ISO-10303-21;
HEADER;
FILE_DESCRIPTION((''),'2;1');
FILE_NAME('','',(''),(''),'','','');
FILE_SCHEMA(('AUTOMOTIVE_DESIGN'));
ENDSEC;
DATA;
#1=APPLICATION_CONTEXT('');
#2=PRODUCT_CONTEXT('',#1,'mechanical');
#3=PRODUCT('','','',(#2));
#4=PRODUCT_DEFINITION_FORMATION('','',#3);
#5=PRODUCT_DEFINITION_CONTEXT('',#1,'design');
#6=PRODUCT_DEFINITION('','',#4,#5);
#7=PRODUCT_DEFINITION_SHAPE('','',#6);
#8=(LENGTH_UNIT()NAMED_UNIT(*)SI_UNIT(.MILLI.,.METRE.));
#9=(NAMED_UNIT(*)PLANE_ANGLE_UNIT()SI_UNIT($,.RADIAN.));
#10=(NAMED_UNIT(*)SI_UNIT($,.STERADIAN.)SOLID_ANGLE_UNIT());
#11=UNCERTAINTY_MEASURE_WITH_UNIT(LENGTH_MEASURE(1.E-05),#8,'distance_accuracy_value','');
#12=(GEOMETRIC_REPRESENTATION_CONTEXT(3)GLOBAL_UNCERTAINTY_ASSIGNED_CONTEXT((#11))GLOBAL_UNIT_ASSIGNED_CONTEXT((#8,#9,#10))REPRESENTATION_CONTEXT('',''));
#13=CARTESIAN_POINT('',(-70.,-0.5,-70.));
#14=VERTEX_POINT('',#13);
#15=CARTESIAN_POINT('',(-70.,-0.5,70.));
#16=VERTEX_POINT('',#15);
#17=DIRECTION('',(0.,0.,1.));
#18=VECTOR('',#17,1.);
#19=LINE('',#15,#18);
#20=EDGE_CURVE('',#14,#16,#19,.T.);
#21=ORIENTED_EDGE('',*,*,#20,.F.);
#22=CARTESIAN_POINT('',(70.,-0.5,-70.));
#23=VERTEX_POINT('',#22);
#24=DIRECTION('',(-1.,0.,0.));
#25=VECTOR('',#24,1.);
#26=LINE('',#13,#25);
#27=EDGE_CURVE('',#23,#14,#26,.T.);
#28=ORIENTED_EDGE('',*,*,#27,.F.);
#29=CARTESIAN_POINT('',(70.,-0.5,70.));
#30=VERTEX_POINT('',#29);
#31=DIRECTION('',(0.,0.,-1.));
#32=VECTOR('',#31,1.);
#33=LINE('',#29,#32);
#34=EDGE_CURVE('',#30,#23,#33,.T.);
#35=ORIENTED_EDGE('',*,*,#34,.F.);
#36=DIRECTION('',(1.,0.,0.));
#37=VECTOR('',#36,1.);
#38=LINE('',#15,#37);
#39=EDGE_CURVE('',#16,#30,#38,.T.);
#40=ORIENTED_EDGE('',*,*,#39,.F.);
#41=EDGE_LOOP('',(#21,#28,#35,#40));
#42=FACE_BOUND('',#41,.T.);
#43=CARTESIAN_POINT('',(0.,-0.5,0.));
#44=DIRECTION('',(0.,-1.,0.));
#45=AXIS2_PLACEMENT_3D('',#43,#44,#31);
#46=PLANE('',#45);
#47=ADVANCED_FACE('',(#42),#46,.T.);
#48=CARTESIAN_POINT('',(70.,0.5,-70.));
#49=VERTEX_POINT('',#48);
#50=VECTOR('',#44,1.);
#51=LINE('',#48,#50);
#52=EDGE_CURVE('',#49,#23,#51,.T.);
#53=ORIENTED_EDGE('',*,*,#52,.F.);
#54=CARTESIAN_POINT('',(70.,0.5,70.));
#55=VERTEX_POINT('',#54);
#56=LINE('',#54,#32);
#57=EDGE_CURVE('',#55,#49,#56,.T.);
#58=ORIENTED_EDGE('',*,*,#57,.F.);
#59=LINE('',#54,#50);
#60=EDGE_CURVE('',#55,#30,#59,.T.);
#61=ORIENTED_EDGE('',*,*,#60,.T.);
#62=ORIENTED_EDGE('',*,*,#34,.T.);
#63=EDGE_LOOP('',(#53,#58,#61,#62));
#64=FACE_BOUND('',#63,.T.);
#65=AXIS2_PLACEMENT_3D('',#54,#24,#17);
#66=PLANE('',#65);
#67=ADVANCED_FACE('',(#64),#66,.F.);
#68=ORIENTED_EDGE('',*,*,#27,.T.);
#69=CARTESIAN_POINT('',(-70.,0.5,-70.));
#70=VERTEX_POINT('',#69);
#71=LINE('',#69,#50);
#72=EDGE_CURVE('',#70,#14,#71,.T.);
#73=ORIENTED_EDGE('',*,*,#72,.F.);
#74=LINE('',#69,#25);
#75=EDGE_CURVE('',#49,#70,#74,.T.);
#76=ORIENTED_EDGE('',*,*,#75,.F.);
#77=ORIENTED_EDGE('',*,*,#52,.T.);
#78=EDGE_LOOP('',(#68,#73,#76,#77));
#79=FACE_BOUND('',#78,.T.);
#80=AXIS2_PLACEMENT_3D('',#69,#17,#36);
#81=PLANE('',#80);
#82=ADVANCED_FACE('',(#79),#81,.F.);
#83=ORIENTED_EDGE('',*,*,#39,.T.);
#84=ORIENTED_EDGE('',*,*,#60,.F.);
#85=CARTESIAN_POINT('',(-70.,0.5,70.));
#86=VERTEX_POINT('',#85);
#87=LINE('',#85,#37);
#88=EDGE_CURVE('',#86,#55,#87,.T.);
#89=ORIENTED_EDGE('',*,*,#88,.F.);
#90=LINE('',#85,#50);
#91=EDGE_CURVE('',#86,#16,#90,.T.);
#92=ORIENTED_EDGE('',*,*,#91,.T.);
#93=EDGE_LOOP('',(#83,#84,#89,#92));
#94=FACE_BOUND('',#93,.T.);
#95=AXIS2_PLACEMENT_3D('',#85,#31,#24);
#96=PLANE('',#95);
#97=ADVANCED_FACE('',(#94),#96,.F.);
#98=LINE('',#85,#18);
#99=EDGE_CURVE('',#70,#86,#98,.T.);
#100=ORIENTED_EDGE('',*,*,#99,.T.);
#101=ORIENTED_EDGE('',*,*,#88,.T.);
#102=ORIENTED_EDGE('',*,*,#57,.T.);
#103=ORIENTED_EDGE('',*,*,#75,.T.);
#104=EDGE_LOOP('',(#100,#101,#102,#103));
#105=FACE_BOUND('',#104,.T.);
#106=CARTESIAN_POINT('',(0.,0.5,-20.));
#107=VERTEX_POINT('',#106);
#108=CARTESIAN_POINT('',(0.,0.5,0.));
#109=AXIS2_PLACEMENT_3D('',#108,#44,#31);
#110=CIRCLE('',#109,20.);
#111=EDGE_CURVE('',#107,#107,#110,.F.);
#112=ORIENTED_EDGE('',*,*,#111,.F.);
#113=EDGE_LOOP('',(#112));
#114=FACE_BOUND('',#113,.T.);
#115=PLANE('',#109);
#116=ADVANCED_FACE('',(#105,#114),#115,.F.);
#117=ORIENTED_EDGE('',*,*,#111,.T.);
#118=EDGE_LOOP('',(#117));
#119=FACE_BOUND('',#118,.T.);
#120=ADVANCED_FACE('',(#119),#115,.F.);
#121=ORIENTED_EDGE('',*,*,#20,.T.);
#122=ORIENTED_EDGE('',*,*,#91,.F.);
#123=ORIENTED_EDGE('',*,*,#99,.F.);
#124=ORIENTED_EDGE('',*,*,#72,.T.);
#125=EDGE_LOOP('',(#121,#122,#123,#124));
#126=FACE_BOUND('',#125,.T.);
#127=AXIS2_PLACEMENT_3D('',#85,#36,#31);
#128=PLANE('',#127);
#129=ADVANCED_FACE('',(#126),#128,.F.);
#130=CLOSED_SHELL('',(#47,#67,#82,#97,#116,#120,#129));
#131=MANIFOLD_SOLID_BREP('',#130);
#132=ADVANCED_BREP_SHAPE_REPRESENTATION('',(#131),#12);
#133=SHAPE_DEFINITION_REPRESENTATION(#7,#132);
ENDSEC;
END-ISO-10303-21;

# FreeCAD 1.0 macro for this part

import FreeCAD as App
import Part
import Sketcher

V = App.Vector
Q = App.Units.Quantity

doc = App.newDocument("Part")
params = doc.addObject("Spreadsheet::Sheet", "Params")
for row, (alias, value) in enumerate([
    ("sketch1_width", "140 mm"),
    ("pad1_length", "1 mm"),
], start=1):
    params.set(f"A{row}", alias)
    params.set(f"B{row}", "=" + value)
    params.setAlias(f"B{row}", alias)

body = doc.addObject("PartDesign::Body", "Body")

# Sketch on XZ plane
sketch1 = body.newObject("Sketcher::SketchObject", "Sketch")
sketch1.AttachmentSupport = (doc.getObject("XZ_Plane"), [""])
sketch1.MapMode = "FlatFace"
sketch1.addGeometry([
    Part.LineSegment(V(-70, -70, 0), V(-70, 70, 0)),
    Part.LineSegment(V(-70, 70, 0), V(70, 70, 0)),
    Part.LineSegment(V(70, 70, 0), V(70, -70, 0)),
    Part.LineSegment(V(70, -70, 0), V(-70, -70, 0)),
], False)
sketch1.addConstraint([
    Sketcher.Constraint("Coincident", 0, 2, 1, 1),
    Sketcher.Constraint("Coincident", 1, 2, 2, 1),
    Sketcher.Constraint("Coincident", 2, 2, 3, 1),
    Sketcher.Constraint("Coincident", 3, 2, 0, 1),
    Sketcher.Constraint("Vertical", 0),
    Sketcher.Constraint("Horizontal", 1),
    Sketcher.Constraint("Vertical", 2),
    Sketcher.Constraint("Horizontal", 3),
    Sketcher.Constraint("Symmetric", 0, 2, 2, 2, -1, 1),
    Sketcher.Constraint("Equal", 3, 0),
    Sketcher.Constraint("DistanceX", 1, 1, 1, 2, Q("140 mm")),
])
sketch1.setExpression("Constraints[10]", "Params.sketch1_width")
pad1 = body.newObject("PartDesign::Pad", "Pad")
pad1.Profile = sketch1
pad1.setExpression("Length", "Params.pad1_length")
pad1.Midplane = True

doc.recompute()
